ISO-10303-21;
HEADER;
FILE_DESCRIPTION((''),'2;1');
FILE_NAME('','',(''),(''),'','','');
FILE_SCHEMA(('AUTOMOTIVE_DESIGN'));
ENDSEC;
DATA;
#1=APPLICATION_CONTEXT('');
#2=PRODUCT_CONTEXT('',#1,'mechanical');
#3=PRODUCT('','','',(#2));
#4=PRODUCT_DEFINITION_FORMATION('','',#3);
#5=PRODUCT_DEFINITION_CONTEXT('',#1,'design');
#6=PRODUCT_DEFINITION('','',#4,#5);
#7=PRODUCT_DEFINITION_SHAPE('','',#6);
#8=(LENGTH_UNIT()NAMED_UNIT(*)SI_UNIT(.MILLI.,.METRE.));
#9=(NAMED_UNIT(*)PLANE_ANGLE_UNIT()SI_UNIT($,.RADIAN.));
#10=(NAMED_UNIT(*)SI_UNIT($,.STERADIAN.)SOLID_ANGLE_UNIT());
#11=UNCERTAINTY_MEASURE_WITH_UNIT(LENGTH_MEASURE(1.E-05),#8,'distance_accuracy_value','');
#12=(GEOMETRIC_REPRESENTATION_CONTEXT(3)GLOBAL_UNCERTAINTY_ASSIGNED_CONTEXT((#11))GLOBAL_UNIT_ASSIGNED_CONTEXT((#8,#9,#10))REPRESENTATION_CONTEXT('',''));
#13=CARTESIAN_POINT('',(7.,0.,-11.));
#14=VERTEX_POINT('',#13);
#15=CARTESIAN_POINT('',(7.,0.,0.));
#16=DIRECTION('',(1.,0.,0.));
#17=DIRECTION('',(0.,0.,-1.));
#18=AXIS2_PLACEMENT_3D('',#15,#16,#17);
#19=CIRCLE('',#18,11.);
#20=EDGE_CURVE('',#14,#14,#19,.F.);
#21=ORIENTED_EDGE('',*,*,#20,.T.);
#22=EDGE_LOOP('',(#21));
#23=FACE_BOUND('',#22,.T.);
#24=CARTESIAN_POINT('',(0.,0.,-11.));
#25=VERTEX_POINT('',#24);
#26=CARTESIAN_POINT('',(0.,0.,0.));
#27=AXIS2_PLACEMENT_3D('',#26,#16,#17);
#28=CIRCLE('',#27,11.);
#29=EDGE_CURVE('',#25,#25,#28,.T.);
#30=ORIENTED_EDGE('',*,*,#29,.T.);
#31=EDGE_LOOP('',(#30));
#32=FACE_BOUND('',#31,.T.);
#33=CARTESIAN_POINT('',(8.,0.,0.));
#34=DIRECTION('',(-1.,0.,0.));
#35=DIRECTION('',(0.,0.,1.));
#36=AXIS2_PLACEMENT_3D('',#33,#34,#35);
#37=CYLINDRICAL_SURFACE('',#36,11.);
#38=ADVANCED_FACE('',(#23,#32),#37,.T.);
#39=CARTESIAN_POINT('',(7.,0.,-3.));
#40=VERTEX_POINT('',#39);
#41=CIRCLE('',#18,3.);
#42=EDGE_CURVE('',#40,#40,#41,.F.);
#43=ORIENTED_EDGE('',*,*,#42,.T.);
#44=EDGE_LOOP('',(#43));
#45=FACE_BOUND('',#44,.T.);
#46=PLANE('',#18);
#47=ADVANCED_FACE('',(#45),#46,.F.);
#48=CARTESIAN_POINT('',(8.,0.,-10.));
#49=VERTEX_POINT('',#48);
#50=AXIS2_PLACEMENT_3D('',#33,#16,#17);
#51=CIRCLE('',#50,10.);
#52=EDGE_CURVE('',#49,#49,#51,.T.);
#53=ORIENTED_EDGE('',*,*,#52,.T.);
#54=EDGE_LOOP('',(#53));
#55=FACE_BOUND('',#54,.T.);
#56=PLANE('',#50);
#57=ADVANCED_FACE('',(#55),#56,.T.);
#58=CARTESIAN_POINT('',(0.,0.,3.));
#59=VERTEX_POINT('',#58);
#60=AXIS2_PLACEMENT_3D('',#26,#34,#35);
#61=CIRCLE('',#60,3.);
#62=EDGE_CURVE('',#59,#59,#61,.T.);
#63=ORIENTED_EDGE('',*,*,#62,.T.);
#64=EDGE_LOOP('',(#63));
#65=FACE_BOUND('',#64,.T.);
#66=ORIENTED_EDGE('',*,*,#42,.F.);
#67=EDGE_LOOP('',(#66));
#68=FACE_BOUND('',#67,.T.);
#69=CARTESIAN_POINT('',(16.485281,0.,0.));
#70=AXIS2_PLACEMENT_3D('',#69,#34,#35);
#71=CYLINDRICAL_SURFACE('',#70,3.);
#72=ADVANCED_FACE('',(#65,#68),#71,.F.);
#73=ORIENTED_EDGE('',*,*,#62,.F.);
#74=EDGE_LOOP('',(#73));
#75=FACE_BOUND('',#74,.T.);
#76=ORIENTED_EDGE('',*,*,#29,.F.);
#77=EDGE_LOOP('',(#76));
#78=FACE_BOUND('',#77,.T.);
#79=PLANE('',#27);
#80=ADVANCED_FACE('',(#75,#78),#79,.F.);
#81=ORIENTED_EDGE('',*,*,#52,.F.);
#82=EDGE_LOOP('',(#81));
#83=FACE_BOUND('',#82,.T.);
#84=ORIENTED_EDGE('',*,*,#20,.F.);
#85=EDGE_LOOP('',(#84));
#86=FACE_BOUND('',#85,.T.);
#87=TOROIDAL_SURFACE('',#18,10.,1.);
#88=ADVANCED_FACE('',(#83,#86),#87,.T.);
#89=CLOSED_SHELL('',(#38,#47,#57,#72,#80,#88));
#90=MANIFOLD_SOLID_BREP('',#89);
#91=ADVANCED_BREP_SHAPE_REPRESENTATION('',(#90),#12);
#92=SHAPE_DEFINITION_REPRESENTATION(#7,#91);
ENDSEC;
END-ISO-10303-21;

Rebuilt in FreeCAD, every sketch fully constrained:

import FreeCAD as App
import Part
import Sketcher

V = App.Vector
Q = App.Units.Quantity


def edges_at(feature, points):
    """Names of the edges that pass closest to the given points."""
    edges = feature.Shape.Edges
    near = lambda p: min(range(len(edges)), key=lambda i: edges[i].distToShape(Part.Vertex(*p))[0])
    return sorted({f"Edge{near(p) + 1}" for p in points})

doc = App.newDocument("Part")
body = doc.addObject("PartDesign::Body", "Body")

sketch1 = doc.addObject("Sketcher::SketchObject", "Sketch")
body.addObject(sketch1)
sketch1.AttachmentSupport = (doc.YZ_Plane, [""])
sketch1.MapMode = "FlatFace"
sketch1.addGeometry(Part.Circle(V(0, 0, 0), V(0, 0, 1), 11), False)
sketch1.addConstraint(Sketcher.Constraint("Coincident", 0, 3, -1, 1))
sketch1.addConstraint(Sketcher.Constraint("Diameter", 0, Q("22 mm")))
pad1 = doc.addObject("PartDesign::Pad", "Pad")
body.addObject(pad1)
pad1.Profile = sketch1
pad1.Length = 8

sketch2 = doc.addObject("Sketcher::SketchObject", "Sketch001")
body.addObject(sketch2)
sketch2.AttachmentSupport = (doc.YZ_Plane, [""])
sketch2.MapMode = "FlatFace"
sketch2.addGeometry(Part.Circle(V(0, 0, 0), V(0, 0, 1), 3), False)
sketch2.addConstraint(Sketcher.Constraint("Coincident", 0, 3, -1, 1))
sketch2.addConstraint(Sketcher.Constraint("Diameter", 0, Q("6 mm")))
pocket1 = doc.addObject("PartDesign::Pocket", "Pocket")
body.addObject(pocket1)
pocket1.Profile = sketch2
pocket1.Length = 7
pocket1.Reversed = True
doc.recompute()

fillet = doc.addObject("PartDesign::Fillet", "Fillet")
body.addObject(fillet)
fillet.Base = (pocket1, edges_at(pocket1, [(8, 0, 11)]))
fillet.Radius = 1

doc.recompute()
